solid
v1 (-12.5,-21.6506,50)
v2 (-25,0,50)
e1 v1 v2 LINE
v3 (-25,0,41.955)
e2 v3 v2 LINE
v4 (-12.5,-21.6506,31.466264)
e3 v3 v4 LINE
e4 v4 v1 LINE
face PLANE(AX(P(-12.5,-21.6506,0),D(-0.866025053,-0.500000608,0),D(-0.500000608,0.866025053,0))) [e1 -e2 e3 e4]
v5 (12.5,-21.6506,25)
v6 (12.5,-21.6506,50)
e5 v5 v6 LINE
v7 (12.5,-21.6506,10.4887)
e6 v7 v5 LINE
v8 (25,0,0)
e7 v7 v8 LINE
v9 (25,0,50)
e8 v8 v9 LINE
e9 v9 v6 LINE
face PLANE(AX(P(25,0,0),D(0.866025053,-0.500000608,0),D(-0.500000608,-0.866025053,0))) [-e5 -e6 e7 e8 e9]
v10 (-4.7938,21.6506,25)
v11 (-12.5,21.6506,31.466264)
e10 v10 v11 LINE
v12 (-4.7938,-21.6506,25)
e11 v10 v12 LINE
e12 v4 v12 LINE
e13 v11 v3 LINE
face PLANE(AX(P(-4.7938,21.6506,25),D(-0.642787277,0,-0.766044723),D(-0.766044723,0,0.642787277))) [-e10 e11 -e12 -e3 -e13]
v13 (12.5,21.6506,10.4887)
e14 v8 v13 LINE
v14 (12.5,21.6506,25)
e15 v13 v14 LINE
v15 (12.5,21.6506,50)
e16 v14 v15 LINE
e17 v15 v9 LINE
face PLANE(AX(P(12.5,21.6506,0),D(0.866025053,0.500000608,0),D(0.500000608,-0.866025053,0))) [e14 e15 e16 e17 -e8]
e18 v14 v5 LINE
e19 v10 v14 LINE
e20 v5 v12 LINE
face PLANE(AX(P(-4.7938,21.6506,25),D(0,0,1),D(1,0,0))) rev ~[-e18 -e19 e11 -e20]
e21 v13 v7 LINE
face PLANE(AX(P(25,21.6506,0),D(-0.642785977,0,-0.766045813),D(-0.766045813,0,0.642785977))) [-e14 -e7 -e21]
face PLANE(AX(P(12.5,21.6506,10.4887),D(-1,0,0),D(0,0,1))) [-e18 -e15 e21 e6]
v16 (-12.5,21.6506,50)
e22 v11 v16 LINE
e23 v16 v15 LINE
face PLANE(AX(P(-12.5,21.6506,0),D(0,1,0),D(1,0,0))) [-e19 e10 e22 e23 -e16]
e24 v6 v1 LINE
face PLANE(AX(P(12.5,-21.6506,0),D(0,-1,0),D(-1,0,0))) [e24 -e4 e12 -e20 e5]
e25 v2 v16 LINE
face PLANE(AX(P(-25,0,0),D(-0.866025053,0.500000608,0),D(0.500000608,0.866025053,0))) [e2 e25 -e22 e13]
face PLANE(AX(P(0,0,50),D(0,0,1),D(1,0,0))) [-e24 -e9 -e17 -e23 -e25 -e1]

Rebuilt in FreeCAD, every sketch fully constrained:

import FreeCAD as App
import Part
import Sketcher
from FreeCAD import Vector
Q = App.Units.Quantity


def add_polygon(sketch, points):
    """Adds a closed chain of lines whose ends are joined by coincident constraints."""
    first, n = sketch.GeometryCount, len(points)
    for a, b in zip(points, points[1:] + points[:1]):
        sketch.addGeometry(Part.LineSegment(App.Vector(*a, 0), App.Vector(*b, 0)), False)
    for i in range(n):
        sketch.addConstraint(Sketcher.Constraint("Coincident", first + i, 2, first + (i + 1) % n, 1))

doc = App.newDocument("Part")
params = doc.addObject("Spreadsheet::Sheet", "Params")
for row, (alias, value) in enumerate([
    ("sketch1_width", "25 mm"),
    ("sketch1_length", "25 mm"),
    ("pad1_length", "50 mm"),
    ("sketch2_width", "50 mm"),
    ("pocket1_length", "50 mm"),
], start=1):
    params.set(f"A{row}", alias)
    params.set(f"B{row}", "=" + value)
    params.setAlias(f"B{row}", alias)

body = doc.addObject("PartDesign::Body", "Body")

# Sketch on XY plane
sketch1 = doc.addObject("Sketcher::SketchObject", "Sketch")
body.addObject(sketch1)
sketch1.AttachmentSupport = (doc.XY_Plane, [""])
sketch1.MapMode = "FlatFace"
add_polygon(sketch1, [(12.5, -21.6506), (25, 0), (12.5, 21.6506), (-12.5, 21.6506), (-25, 0), (-12.5, -21.6506)])  # lines 0-5
sketch1.addConstraint([
    Sketcher.Constraint("Horizontal", 2),
    Sketcher.Constraint("Horizontal", 5),
    Sketcher.Constraint("Symmetric", 0, 2, 3, 2, -1, 1),
    Sketcher.Constraint("Symmetric", 1, 2, 4, 2, -1, 1),
    Sketcher.Constraint("PointOnObject", 0, 2, -1),
    Sketcher.Constraint("Parallel", 0, 3),
    Sketcher.Constraint("Vertical", 2, 2, 4, 2),
    Sketcher.Constraint("DistanceX", 2, 2, 2, 1, 25.0),
    Sketcher.Constraint("Angle", 0, Q("60 deg")),
    Sketcher.Constraint("Distance", 0, 25.0),
])
sketch1.setExpression("Constraints[13]", "Params.sketch1_width")
sketch1.setExpression("Constraints[15]", "Params.sketch1_length")
pad1 = doc.addObject("PartDesign::Pad", "Pad")
body.addObject(pad1)
pad1.Profile = sketch1
pad1.setExpression("Length", "Params.pad1_length")

# Sketch on XZ plane
sketch2 = doc.addObject("Sketcher::SketchObject", "Sketch001")
body.addObject(sketch2)
sketch2.AttachmentSupport = (doc.XZ_Plane, [""])
sketch2.MapMode = "FlatFace"
sketch2.AttachmentOffset = App.Placement(Vector(0, 0, -21.6506), App.Rotation())
add_polygon(sketch2, [(25, 0), (-25, 0), (-25, 41.955), (-4.7938, 25), (12.5, 25), (12.5, 10.4887)])  # lines 0-5
sketch2.addConstraint([
    Sketcher.Constraint("Horizontal", 0),
    Sketcher.Constraint("Vertical", 1),
    Sketcher.Constraint("Horizontal", 3),
    Sketcher.Constraint("Vertical", 4),
    Sketcher.Constraint("Symmetric", 0, 2, 5, 2, -1, 1),
    Sketcher.Constraint("Parallel", 2, 5),
    Sketcher.Constraint("DistanceX", 0, 2, 0, 1, 50.0),
    Sketcher.Constraint("Angle", 2, Q("-40 deg")),
    Sketcher.Constraint("DistanceY", -1, 1, 2, 2, 25.0),
    Sketcher.Constraint("DistanceX", -1, 1, 3, 2, 12.5),
    Sketcher.Constraint("DistanceY", 1, 1, 1, 2, 41.955),
])
sketch2.setExpression("Constraints[12]", "Params.sketch2_width")
pocket1 = doc.addObject("PartDesign::Pocket", "Pocket")
body.addObject(pocket1)
pocket1.Profile = sketch2
pocket1.setExpression("Length", "Params.pocket1_length")
pocket1.Reversed = True

doc.recompute()
